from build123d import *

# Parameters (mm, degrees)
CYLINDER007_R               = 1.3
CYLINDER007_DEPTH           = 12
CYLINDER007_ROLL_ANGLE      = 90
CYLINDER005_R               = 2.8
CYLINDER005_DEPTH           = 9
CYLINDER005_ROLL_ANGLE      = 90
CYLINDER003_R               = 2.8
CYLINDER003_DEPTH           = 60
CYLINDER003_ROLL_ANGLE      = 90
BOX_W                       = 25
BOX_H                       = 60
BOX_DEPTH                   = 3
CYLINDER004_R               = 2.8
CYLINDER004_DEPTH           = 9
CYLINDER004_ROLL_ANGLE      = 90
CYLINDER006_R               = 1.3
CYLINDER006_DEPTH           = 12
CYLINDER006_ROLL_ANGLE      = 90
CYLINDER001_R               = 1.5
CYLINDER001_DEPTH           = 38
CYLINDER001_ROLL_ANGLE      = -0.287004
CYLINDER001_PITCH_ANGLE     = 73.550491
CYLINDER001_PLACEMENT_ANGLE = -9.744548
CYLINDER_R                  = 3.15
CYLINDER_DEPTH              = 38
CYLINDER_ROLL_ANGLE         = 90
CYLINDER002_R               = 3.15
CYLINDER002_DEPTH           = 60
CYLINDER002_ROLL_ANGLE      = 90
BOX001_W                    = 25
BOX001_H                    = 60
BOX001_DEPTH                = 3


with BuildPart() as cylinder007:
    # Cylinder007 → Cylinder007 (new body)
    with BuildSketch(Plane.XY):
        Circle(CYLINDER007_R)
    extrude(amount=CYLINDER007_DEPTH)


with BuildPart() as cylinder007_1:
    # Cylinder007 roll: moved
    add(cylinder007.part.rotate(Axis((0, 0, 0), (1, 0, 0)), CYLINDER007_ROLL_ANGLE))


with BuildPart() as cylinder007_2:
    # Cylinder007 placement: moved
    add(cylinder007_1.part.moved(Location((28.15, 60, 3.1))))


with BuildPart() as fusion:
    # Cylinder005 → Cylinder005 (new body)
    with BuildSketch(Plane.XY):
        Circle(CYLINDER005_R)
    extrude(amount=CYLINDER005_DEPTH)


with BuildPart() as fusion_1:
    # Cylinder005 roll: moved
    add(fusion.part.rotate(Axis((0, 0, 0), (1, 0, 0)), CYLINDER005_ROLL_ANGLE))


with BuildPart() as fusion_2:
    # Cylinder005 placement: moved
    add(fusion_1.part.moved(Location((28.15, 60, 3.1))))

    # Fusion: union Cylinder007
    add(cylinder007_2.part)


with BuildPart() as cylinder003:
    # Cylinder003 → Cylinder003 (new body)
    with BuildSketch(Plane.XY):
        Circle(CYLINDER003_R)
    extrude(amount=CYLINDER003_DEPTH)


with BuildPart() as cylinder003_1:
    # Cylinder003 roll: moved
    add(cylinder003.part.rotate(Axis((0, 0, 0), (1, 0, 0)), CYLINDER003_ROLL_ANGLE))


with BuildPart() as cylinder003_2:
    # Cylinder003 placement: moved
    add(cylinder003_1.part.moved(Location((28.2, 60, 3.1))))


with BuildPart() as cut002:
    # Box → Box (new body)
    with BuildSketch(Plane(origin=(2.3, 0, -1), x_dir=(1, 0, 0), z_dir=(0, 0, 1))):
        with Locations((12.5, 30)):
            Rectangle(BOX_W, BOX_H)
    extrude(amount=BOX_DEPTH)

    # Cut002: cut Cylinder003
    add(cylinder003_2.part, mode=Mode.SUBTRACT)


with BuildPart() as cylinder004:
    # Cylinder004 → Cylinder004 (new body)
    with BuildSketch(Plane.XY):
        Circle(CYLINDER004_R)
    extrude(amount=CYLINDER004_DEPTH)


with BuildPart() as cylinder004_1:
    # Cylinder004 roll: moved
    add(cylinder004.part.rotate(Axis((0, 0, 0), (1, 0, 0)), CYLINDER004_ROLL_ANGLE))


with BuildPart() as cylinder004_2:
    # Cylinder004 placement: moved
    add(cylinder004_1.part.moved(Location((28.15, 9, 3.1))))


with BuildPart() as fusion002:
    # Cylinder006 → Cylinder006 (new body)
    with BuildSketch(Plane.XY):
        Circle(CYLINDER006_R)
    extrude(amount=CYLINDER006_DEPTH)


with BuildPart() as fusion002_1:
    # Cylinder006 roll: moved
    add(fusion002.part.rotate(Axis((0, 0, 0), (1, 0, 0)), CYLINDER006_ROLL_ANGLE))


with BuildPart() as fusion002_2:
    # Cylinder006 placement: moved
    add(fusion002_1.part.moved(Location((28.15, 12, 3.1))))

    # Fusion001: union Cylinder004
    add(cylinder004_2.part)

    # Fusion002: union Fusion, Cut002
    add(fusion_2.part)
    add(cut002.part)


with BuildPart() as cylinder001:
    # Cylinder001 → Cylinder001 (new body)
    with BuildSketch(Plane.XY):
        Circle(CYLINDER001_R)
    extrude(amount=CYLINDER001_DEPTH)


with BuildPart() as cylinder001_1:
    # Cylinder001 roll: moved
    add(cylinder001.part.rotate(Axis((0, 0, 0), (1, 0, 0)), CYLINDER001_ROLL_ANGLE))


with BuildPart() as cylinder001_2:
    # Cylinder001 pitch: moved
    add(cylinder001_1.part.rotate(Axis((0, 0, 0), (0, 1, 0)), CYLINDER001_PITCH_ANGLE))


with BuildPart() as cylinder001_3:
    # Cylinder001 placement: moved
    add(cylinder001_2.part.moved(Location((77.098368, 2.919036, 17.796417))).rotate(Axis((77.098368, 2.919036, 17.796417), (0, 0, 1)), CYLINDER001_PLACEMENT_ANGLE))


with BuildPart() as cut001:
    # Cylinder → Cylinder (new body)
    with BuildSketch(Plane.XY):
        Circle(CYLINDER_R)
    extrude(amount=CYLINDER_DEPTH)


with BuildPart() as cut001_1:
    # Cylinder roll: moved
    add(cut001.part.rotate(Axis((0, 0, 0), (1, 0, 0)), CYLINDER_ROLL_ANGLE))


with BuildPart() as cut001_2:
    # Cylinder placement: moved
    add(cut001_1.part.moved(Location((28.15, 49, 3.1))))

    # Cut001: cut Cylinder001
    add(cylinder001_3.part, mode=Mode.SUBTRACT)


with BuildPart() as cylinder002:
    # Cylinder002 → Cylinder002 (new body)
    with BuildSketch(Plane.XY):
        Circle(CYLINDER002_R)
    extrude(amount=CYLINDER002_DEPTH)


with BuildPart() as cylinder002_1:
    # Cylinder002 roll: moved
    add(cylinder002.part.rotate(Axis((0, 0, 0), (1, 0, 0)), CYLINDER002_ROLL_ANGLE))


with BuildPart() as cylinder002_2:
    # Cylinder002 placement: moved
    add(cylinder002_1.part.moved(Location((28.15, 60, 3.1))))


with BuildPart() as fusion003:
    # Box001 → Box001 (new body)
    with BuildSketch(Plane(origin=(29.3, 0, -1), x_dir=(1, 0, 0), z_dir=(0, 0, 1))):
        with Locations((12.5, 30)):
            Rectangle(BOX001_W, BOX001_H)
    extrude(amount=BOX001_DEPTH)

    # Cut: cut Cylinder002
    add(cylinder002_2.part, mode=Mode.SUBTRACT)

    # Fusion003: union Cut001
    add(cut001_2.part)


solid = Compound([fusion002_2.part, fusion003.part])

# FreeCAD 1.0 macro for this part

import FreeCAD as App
import Part
import Sketcher
from FreeCAD import Vector
Q = App.Units.Quantity

doc = App.newDocument("Part")
body = doc.addObject("PartDesign::Body", "Body")

# Sketch on XY plane
sketch1 = body.newObject("Sketcher::SketchObject", "Sketch")
sketch1.AttachmentSupport = (doc.getObject("XY_Plane"), [""])
sketch1.MapMode = "FlatFace"
sketch1.addGeometry(Part.Circle(Vector(0, 0, 0), Vector(0, 0, 1), 1.3), False)
sketch1.addConstraint(Sketcher.Constraint("Coincident", 0, 3, -1, 1))
sketch1.addConstraint(Sketcher.Constraint("Diameter", 0, Q("2.6 mm")))
pad1 = body.newObject("PartDesign::Pad", "Pad")
pad1.Profile = sketch1
pad1.Length = 12
body2 = doc.addObject("PartDesign::Body", "Body001")
doc.recompute()

body.Placement = App.Placement(Vector(0, 0, 0), App.Rotation(Vector(1, 0, 0), 90))
boolean = body2.newObject("PartDesign::Boolean", "Boolean")
boolean.Type = "Fuse"
boolean.addObjects([body])
body3 = doc.addObject("PartDesign::Body", "Body002")
doc.recompute()

body2.Placement = App.Placement(Vector(28.15, 60, 3.1), App.Rotation(Vector(0, 0, 1), 0))
boolean2 = body3.newObject("PartDesign::Boolean", "Boolean001")
boolean2.Type = "Fuse"
boolean2.addObjects([body2])
body4 = doc.addObject("PartDesign::Body", "Body003")

# Sketch on XY plane
sketch2 = body4.newObject("Sketcher::SketchObject", "Sketch001")
sketch2.AttachmentSupport = (doc.getObject("XY_Plane003"), [""])
sketch2.MapMode = "FlatFace"
sketch2.addGeometry(Part.Circle(Vector(0, 0, 0), Vector(0, 0, 1), 2.8), False)
sketch2.addConstraint(Sketcher.Constraint("Coincident", 0, 3, -1, 1))
sketch2.addConstraint(Sketcher.Constraint("Diameter", 0, Q("5.6 mm")))
pad2 = body4.newObject("PartDesign::Pad", "Pad001")
pad2.Profile = sketch2
pad2.Length = 9
body5 = doc.addObject("PartDesign::Body", "Body004")
doc.recompute()

body4.Placement = App.Placement(Vector(0, 0, 0), App.Rotation(Vector(1, 0, 0), 90))
boolean3 = body5.newObject("PartDesign::Boolean", "Boolean002")
boolean3.Type = "Fuse"
boolean3.addObjects([body4])
body6 = doc.addObject("PartDesign::Body", "Body005")
doc.recompute()

body5.Placement = App.Placement(Vector(28.15, 60, 3.1), App.Rotation(Vector(0, 0, 1), 0))
boolean4 = body6.newObject("PartDesign::Boolean", "Boolean003")
boolean4.Type = "Fuse"
boolean4.addObjects([body5])
doc.recompute()

boolean5 = body6.newObject("PartDesign::Boolean", "Boolean004")
boolean5.Type = "Fuse"
boolean5.addObjects([body3])
body7 = doc.addObject("PartDesign::Body", "Body006")

# Sketch on XY plane
sketch3 = body7.newObject("Sketcher::SketchObject", "Sketch002")
sketch3.AttachmentSupport = (doc.getObject("XY_Plane006"), [""])
sketch3.MapMode = "FlatFace"
sketch3.addGeometry(Part.Circle(Vector(0, 0, 0), Vector(0, 0, 1), 2.8), False)
sketch3.addConstraint(Sketcher.Constraint("Coincident", 0, 3, -1, 1))
sketch3.addConstraint(Sketcher.Constraint("Diameter", 0, Q("5.6 mm")))
pad3 = body7.newObject("PartDesign::Pad", "Pad002")
pad3.Profile = sketch3
pad3.Length = 60
body8 = doc.addObject("PartDesign::Body", "Body007")
doc.recompute()

body7.Placement = App.Placement(Vector(0, 0, 0), App.Rotation(Vector(1, 0, 0), 90))
boolean6 = body8.newObject("PartDesign::Boolean", "Boolean005")
boolean6.Type = "Fuse"
boolean6.addObjects([body7])
body9 = doc.addObject("PartDesign::Body", "Body008")
doc.recompute()

body8.Placement = App.Placement(Vector(28.2, 60, 3.1), App.Rotation(Vector(0, 0, 1), 0))
boolean7 = body9.newObject("PartDesign::Boolean", "Boolean006")
boolean7.Type = "Fuse"
boolean7.addObjects([body8])
body10 = doc.addObject("PartDesign::Body", "Body009")

# Sketch on XY plane
sketch4 = body10.newObject("Sketcher::SketchObject", "Sketch003")
sketch4.AttachmentSupport = (doc.getObject("XY_Plane009"), [""])
sketch4.MapMode = "FlatFace"
sketch4.AttachmentOffset = App.Placement(Vector(0, 0, -1), App.Rotation())
sketch4.addGeometry(Part.LineSegment(Vector(2, 60, 0), Vector(2, 0, 0)), False)
sketch4.addGeometry(Part.LineSegment(Vector(2, 0, 0), Vector(27, 0, 0)), False)
sketch4.addGeometry(Part.LineSegment(Vector(27, 0, 0), Vector(27, 60, 0)), False)
sketch4.addGeometry(Part.LineSegment(Vector(27, 60, 0), Vector(2, 60, 0)), False)
sketch4.addConstraint(Sketcher.Constraint("Coincident", 0, 2, 1, 1))
sketch4.addConstraint(Sketcher.Constraint("Coincident", 1, 2, 2, 1))
sketch4.addConstraint(Sketcher.Constraint("Coincident", 2, 2, 3, 1))
sketch4.addConstraint(Sketcher.Constraint("Coincident", 3, 2, 0, 1))
sketch4.addConstraint(Sketcher.Constraint("Vertical", 0))
sketch4.addConstraint(Sketcher.Constraint("Horizontal", 1))
sketch4.addConstraint(Sketcher.Constraint("Vertical", 2))
sketch4.addConstraint(Sketcher.Constraint("Horizontal", 3))
sketch4.addConstraint(Sketcher.Constraint("PointOnObject", 0, 2, -1))
sketch4.addConstraint(Sketcher.Constraint("DistanceX", 1, 1, 1, 2, Q("25 mm")))
sketch4.addConstraint(Sketcher.Constraint("DistanceY", 0, 2, 0, 1, Q("60 mm")))
sketch4.addConstraint(Sketcher.Constraint("DistanceX", -1, 1, 0, 2, Q("2.3 mm")))
pad4 = body10.newObject("PartDesign::Pad", "Pad003")
pad4.Profile = sketch4
pad4.Length = 3
doc.recompute()

boolean8 = body10.newObject("PartDesign::Boolean", "Boolean007")
boolean8.Type = "Cut"
boolean8.addObjects([body9])
body11 = doc.addObject("PartDesign::Body", "Body010")

# Sketch on XY plane
sketch5 = body11.newObject("Sketcher::SketchObject", "Sketch004")
sketch5.AttachmentSupport = (doc.getObject("XY_Plane010"), [""])
sketch5.MapMode = "FlatFace"
sketch5.addGeometry(Part.Circle(Vector(0, 0, 0), Vector(0, 0, 1), 2.8), False)
sketch5.addConstraint(Sketcher.Constraint("Coincident", 0, 3, -1, 1))
sketch5.addConstraint(Sketcher.Constraint("Diameter", 0, Q("5.6 mm")))
pad5 = body11.newObject("PartDesign::Pad", "Pad004")
pad5.Profile = sketch5
pad5.Length = 9
body12 = doc.addObject("PartDesign::Body", "Body011")
doc.recompute()

body11.Placement = App.Placement(Vector(0, 0, 0), App.Rotation(Vector(1, 0, 0), 90))
boolean9 = body12.newObject("PartDesign::Boolean", "Boolean008")
boolean9.Type = "Fuse"
boolean9.addObjects([body11])
body13 = doc.addObject("PartDesign::Body", "Body012")
doc.recompute()

body12.Placement = App.Placement(Vector(28.15, 9, 3.1), App.Rotation(Vector(0, 0, 1), 0))
boolean10 = body13.newObject("PartDesign::Boolean", "Boolean009")
boolean10.Type = "Fuse"
boolean10.addObjects([body12])
body14 = doc.addObject("PartDesign::Body", "Body013")

# Sketch on XY plane
sketch6 = body14.newObject("Sketcher::SketchObject", "Sketch005")
sketch6.AttachmentSupport = (doc.getObject("XY_Plane013"), [""])
sketch6.MapMode = "FlatFace"
sketch6.addGeometry(Part.Circle(Vector(0, 0, 0), Vector(0, 0, 1), 1.3), False)
sketch6.addConstraint(Sketcher.Constraint("Coincident", 0, 3, -1, 1))
sketch6.addConstraint(Sketcher.Constraint("Diameter", 0, Q("2.6 mm")))
pad6 = body14.newObject("PartDesign::Pad", "Pad005")
pad6.Profile = sketch6
pad6.Length = 12
body15 = doc.addObject("PartDesign::Body", "Body014")
doc.recompute()

body14.Placement = App.Placement(Vector(0, 0, 0), App.Rotation(Vector(1, 0, 0), 90))
boolean11 = body15.newObject("PartDesign::Boolean", "Boolean010")
boolean11.Type = "Fuse"
boolean11.addObjects([body14])
body16 = doc.addObject("PartDesign::Body", "Body015")
body16.AllowCompound = True
doc.recompute()

body15.Placement = App.Placement(Vector(28.15, 12, 3.1), App.Rotation(Vector(0, 0, 1), 0))
boolean12 = body16.newObject("PartDesign::Boolean", "Boolean011")
boolean12.Type = "Fuse"
boolean12.addObjects([body15])
doc.recompute()

boolean13 = body16.newObject("PartDesign::Boolean", "Boolean012")
boolean13.Type = "Fuse"
boolean13.addObjects([body13])
doc.recompute()

boolean14 = body16.newObject("PartDesign::Boolean", "Boolean013")
boolean14.Type = "Fuse"
boolean14.addObjects([body6])
doc.recompute()

boolean15 = body16.newObject("PartDesign::Boolean", "Boolean014")
boolean15.Type = "Fuse"
boolean15.addObjects([body10])
body17 = doc.addObject("PartDesign::Body", "Body016")

# Sketch on XY plane
sketch7 = body17.newObject("Sketcher::SketchObject", "Sketch006")
sketch7.AttachmentSupport = (doc.getObject("XY_Plane016"), [""])
sketch7.MapMode = "FlatFace"
sketch7.addGeometry(Part.Circle(Vector(0, 0, 0), Vector(0, 0, 1), 1.5), False)
sketch7.addConstraint(Sketcher.Constraint("Coincident", 0, 3, -1, 1))
sketch7.addConstraint(Sketcher.Constraint("Diameter", 0, Q("3 mm")))
pad7 = body17.newObject("PartDesign::Pad", "Pad006")
pad7.Profile = sketch7
pad7.Length = 38
body18 = doc.addObject("PartDesign::Body", "Body017")
doc.recompute()

body17.Placement = App.Placement(Vector(0, 0, 0), App.Rotation(Vector(1, 0, 0), 359.712996))
boolean16 = body18.newObject("PartDesign::Boolean", "Boolean015")
boolean16.Type = "Fuse"
boolean16.addObjects([body17])
body19 = doc.addObject("PartDesign::Body", "Body018")
doc.recompute()

body18.Placement = App.Placement(Vector(0, 0, 0), App.Rotation(Vector(0, 1, 0), 73.550491))
boolean17 = body19.newObject("PartDesign::Boolean", "Boolean016")
boolean17.Type = "Fuse"
boolean17.addObjects([body18])
body20 = doc.addObject("PartDesign::Body", "Body019")
doc.recompute()

body19.Placement = App.Placement(Vector(77.098368, 2.919036, 17.796417), App.Rotation(Vector(0, 0, 1), 350.255452))
boolean18 = body20.newObject("PartDesign::Boolean", "Boolean017")
boolean18.Type = "Fuse"
boolean18.addObjects([body19])
body21 = doc.addObject("PartDesign::Body", "Body020")

# Sketch on XY plane
sketch8 = body21.newObject("Sketcher::SketchObject", "Sketch007")
sketch8.AttachmentSupport = (doc.getObject("XY_Plane020"), [""])
sketch8.MapMode = "FlatFace"
sketch8.addGeometry(Part.Circle(Vector(0, 0, 0), Vector(0, 0, 1), 3.1), False)
sketch8.addConstraint(Sketcher.Constraint("Coincident", 0, 3, -1, 1))
sketch8.addConstraint(Sketcher.Constraint("Diameter", 0, Q("6.3 mm")))
pad8 = body21.newObject("PartDesign::Pad", "Pad007")
pad8.Profile = sketch8
pad8.Length = 38
body22 = doc.addObject("PartDesign::Body", "Body021")
doc.recompute()

body21.Placement = App.Placement(Vector(0, 0, 0), App.Rotation(Vector(1, 0, 0), 90))
boolean19 = body22.newObject("PartDesign::Boolean", "Boolean018")
boolean19.Type = "Fuse"
boolean19.addObjects([body21])
body23 = doc.addObject("PartDesign::Body", "Body022")
doc.recompute()

body22.Placement = App.Placement(Vector(28.15, 49, 3.1), App.Rotation(Vector(0, 0, 1), 0))
boolean20 = body23.newObject("PartDesign::Boolean", "Boolean019")
boolean20.Type = "Fuse"
boolean20.addObjects([body22])
doc.recompute()

boolean21 = body23.newObject("PartDesign::Boolean", "Boolean020")
boolean21.Type = "Cut"
boolean21.addObjects([body20])
body24 = doc.addObject("PartDesign::Body", "Body023")

# Sketch on XY plane
sketch9 = body24.newObject("Sketcher::SketchObject", "Sketch008")
sketch9.AttachmentSupport = (doc.getObject("XY_Plane023"), [""])
sketch9.MapMode = "FlatFace"
sketch9.addGeometry(Part.Circle(Vector(0, 0, 0), Vector(0, 0, 1), 3.1), False)
sketch9.addConstraint(Sketcher.Constraint("Coincident", 0, 3, -1, 1))
sketch9.addConstraint(Sketcher.Constraint("Diameter", 0, Q("6.3 mm")))
pad9 = body24.newObject("PartDesign::Pad", "Pad008")
pad9.Profile = sketch9
pad9.Length = 60
body25 = doc.addObject("PartDesign::Body", "Body024")
doc.recompute()

body24.Placement = App.Placement(Vector(0, 0, 0), App.Rotation(Vector(1, 0, 0), 90))
boolean22 = body25.newObject("PartDesign::Boolean", "Boolean021")
boolean22.Type = "Fuse"
boolean22.addObjects([body24])
body26 = doc.addObject("PartDesign::Body", "Body025")
doc.recompute()

body25.Placement = App.Placement(Vector(28.15, 60, 3.1), App.Rotation(Vector(0, 0, 1), 0))
boolean23 = body26.newObject("PartDesign::Boolean", "Boolean022")
boolean23.Type = "Fuse"
boolean23.addObjects([body25])
body27 = doc.addObject("PartDesign::Body", "Body026")

# Sketch on XY plane
sketch10 = body27.newObject("Sketcher::SketchObject", "Sketch009")
sketch10.AttachmentSupport = (doc.getObject("XY_Plane026"), [""])
sketch10.MapMode = "FlatFace"
sketch10.AttachmentOffset = App.Placement(Vector(0, 0, -1), App.Rotation())
sketch10.addGeometry(Part.LineSegment(Vector(29, 60, 0), Vector(29, 0, 0)), False)
sketch10.addGeometry(Part.LineSegment(Vector(29, 0, 0), Vector(54, 0, 0)), False)
sketch10.addGeometry(Part.LineSegment(Vector(54, 0, 0), Vector(54, 60, 0)), False)
sketch10.addGeometry(Part.LineSegment(Vector(54, 60, 0), Vector(29, 60, 0)), False)
sketch10.addConstraint(Sketcher.Constraint("Coincident", 0, 2, 1, 1))
sketch10.addConstraint(Sketcher.Constraint("Coincident", 1, 2, 2, 1))
sketch10.addConstraint(Sketcher.Constraint("Coincident", 2, 2, 3, 1))
sketch10.addConstraint(Sketcher.Constraint("Coincident", 3, 2, 0, 1))
sketch10.addConstraint(Sketcher.Constraint("Vertical", 0))
sketch10.addConstraint(Sketcher.Constraint("Horizontal", 1))
sketch10.addConstraint(Sketcher.Constraint("Vertical", 2))
sketch10.addConstraint(Sketcher.Constraint("Horizontal", 3))
sketch10.addConstraint(Sketcher.Constraint("PointOnObject", 0, 2, -1))
sketch10.addConstraint(Sketcher.Constraint("DistanceX", 1, 1, 1, 2, Q("25 mm")))
sketch10.addConstraint(Sketcher.Constraint("DistanceY", 0, 2, 0, 1, Q("60 mm")))
sketch10.addConstraint(Sketcher.Constraint("DistanceX", -1, 1, 0, 2, Q("29.3 mm")))
pad10 = body27.newObject("PartDesign::Pad", "Pad009")
pad10.Profile = sketch10
pad10.Length = 3
doc.recompute()

boolean24 = body27.newObject("PartDesign::Boolean", "Boolean023")
boolean24.Type = "Cut"
boolean24.addObjects([body26])
doc.recompute()

boolean25 = body27.newObject("PartDesign::Boolean", "Boolean024")
boolean25.Type = "Fuse"
boolean25.addObjects([body23])

doc.recompute()
